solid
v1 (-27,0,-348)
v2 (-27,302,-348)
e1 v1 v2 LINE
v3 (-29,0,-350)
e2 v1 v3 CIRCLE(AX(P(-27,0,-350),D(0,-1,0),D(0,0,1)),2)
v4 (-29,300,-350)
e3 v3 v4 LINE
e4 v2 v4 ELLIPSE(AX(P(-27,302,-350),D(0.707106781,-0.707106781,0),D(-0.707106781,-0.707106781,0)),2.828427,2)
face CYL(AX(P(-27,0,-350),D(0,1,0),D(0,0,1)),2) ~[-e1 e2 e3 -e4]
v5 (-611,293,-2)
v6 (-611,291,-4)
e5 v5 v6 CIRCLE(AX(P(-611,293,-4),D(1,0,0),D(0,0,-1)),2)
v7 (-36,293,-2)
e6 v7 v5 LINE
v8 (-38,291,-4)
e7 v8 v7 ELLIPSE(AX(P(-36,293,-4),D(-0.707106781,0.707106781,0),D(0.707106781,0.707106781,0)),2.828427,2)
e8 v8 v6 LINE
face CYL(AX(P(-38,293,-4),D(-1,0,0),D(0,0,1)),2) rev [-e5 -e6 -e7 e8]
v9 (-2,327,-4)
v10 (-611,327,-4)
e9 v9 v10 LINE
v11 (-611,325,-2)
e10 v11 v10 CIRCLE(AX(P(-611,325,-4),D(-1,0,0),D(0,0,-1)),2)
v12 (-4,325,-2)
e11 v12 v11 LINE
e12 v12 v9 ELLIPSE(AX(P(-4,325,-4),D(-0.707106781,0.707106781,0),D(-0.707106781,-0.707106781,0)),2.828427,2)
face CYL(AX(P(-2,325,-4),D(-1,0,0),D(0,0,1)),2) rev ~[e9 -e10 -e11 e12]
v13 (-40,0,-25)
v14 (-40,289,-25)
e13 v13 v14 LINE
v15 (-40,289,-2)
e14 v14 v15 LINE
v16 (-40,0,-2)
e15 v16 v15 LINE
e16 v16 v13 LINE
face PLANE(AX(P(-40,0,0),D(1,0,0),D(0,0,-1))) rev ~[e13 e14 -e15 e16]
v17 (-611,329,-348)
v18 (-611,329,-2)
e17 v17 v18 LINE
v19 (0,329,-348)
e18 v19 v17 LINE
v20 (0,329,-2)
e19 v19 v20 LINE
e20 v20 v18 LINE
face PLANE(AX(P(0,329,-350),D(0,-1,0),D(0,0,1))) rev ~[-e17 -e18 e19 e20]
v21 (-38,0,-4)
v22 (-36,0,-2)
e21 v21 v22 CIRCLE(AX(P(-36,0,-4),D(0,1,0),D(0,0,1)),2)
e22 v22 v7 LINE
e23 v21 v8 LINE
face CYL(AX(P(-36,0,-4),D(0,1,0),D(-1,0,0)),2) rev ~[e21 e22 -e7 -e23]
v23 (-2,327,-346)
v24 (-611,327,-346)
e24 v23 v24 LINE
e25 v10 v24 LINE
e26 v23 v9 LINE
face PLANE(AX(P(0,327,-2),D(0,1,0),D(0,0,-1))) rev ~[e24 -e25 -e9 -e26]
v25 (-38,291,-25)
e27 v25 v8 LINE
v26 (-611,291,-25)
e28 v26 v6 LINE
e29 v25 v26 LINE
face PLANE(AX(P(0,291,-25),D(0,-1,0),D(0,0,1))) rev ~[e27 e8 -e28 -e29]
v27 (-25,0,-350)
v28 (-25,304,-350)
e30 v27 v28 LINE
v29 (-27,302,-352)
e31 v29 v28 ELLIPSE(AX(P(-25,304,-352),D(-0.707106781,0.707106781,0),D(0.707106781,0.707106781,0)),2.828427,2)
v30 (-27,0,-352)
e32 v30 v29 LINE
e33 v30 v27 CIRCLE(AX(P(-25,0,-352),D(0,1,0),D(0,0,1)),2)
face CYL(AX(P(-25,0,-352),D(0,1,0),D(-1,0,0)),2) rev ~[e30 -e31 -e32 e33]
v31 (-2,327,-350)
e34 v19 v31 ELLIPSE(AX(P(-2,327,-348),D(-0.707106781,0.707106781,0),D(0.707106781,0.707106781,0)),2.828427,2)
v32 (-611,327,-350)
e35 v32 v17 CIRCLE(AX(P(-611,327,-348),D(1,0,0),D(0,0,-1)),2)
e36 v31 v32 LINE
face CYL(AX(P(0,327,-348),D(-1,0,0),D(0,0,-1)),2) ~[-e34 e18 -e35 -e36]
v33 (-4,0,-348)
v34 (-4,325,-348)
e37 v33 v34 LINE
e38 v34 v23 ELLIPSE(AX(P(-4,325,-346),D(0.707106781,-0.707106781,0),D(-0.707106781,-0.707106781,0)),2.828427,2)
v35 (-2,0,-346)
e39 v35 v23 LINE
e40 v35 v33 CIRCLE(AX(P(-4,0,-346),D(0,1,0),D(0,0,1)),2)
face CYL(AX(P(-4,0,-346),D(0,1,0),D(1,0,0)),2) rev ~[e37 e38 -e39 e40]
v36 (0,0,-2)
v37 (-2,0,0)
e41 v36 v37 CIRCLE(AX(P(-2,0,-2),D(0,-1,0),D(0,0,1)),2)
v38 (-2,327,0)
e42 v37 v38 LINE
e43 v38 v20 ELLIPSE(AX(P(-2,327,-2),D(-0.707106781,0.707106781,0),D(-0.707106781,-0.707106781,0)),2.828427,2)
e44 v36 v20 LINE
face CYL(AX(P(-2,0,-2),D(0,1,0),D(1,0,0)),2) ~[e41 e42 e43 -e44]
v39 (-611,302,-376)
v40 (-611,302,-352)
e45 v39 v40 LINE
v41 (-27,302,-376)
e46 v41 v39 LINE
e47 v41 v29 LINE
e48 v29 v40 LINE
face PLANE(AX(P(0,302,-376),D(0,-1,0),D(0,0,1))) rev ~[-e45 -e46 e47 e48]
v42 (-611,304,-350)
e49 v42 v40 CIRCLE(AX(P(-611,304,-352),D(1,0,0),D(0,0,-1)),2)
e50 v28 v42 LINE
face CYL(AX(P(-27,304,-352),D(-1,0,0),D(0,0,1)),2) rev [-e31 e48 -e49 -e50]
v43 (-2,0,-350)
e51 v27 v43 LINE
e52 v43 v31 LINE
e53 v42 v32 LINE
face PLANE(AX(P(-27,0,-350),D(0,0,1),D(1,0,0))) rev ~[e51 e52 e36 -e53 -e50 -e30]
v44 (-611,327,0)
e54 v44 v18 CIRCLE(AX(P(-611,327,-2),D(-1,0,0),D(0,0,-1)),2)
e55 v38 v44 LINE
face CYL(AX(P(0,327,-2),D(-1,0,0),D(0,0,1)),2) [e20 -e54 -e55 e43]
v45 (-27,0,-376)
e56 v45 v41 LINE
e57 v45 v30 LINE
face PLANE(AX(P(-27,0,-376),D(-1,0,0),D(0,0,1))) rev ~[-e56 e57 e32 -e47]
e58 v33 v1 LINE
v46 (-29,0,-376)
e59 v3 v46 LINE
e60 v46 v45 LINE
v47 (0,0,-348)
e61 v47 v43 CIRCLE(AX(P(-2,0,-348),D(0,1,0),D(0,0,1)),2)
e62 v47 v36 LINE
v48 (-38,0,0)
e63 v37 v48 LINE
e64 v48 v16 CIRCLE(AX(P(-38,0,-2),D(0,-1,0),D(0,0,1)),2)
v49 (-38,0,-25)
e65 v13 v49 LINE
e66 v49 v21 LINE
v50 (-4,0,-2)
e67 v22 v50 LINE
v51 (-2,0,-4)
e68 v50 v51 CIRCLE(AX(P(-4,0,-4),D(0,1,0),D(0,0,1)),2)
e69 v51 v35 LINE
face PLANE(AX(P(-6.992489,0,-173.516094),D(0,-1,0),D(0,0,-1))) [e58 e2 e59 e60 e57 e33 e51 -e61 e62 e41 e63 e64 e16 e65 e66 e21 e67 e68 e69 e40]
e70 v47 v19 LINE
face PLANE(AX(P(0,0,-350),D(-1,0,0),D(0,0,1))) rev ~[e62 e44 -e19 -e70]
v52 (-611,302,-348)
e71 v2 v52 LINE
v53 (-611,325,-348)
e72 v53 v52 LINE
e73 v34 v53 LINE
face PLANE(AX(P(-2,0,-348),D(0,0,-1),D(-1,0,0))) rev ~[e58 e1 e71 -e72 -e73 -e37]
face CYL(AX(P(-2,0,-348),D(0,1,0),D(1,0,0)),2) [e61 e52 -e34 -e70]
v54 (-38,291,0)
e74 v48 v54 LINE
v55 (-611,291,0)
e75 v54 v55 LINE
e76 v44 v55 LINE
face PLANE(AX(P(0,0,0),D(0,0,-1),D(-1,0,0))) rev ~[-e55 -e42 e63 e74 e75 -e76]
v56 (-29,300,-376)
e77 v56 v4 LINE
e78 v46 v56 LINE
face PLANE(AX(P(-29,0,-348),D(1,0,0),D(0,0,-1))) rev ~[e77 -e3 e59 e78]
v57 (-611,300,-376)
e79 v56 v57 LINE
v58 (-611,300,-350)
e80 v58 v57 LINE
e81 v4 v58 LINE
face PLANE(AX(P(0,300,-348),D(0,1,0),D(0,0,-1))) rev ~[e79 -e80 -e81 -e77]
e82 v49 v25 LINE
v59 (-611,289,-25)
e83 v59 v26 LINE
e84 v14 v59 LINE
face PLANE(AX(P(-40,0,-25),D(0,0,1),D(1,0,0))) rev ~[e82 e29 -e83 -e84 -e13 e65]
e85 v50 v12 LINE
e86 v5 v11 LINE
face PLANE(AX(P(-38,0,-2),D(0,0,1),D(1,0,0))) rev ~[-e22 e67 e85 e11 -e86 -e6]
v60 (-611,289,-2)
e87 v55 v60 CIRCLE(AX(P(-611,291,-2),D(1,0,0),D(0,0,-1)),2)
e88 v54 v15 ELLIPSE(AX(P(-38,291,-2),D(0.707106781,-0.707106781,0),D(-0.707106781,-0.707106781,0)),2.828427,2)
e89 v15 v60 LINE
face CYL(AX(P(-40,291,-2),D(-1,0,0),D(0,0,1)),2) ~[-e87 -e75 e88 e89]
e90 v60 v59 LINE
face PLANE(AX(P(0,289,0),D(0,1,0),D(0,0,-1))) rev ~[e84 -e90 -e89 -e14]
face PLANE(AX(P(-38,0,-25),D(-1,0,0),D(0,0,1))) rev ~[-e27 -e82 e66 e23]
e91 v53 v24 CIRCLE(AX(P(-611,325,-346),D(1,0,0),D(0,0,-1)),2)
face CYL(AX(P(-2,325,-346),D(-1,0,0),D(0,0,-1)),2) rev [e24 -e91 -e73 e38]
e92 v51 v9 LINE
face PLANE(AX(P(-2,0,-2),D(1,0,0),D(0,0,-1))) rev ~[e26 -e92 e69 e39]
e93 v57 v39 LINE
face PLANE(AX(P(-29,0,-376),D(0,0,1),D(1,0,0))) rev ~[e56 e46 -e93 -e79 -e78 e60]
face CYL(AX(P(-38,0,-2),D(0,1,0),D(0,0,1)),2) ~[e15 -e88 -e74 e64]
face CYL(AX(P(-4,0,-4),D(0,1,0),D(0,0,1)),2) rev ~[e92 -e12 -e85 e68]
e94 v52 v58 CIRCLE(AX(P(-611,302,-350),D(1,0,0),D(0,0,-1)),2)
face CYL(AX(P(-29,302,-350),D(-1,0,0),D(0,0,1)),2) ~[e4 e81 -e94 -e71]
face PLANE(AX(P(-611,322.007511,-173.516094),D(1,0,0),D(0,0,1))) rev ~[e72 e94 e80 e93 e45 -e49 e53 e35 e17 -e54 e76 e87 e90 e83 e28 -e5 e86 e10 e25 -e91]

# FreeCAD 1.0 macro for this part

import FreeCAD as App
import Part
import Sketcher
Q = App.Units.Quantity


def edges_at(feature, points):
    """Names of the edges that pass closest to the given points."""
    edges = feature.Shape.Edges
    near = lambda p: min(range(len(edges)), key=lambda i: edges[i].distToShape(Part.Vertex(*p))[0])
    return sorted({f"Edge{near(p) + 1}" for p in points})

doc = App.newDocument("Part")
body = doc.addObject("PartDesign::Body", "Body")

# Sketch on XZ plane
sketch1 = body.newObject("Sketcher::SketchObject", "Sketch")
sketch1.AttachmentSupport = (doc.getObject("XZ_Plane"), [""])
sketch1.MapMode = "FlatFace"
sketch1.addGeometry([
    Part.LineSegment(App.Vector(0, -350, 0), App.Vector(0, 0, 0)),  # 0
    Part.LineSegment(App.Vector(0, 0, 0), App.Vector(-40, 0, 0)),  # 1
    Part.LineSegment(App.Vector(-40, 0, 0), App.Vector(-40, -25, 0)),  # 2
    Part.LineSegment(App.Vector(-40, -25, 0), App.Vector(-38, -25, 0)),  # 3
    Part.LineSegment(App.Vector(-38, -25, 0), App.Vector(-38, -2, 0)),  # 4
    Part.LineSegment(App.Vector(-38, -2, 0), App.Vector(-2, -2, 0)),  # 5
    Part.LineSegment(App.Vector(-2, -2, 0), App.Vector(-2, -348, 0)),  # 6
    Part.LineSegment(App.Vector(-2, -348, 0), App.Vector(-29, -348, 0)),  # 7
    Part.LineSegment(App.Vector(-29, -348, 0), App.Vector(-29, -376, 0)),  # 8
    Part.LineSegment(App.Vector(-29, -376, 0), App.Vector(-27, -376, 0)),  # 9
    Part.LineSegment(App.Vector(-27, -376, 0), App.Vector(-27, -350, 0)),  # 10
    Part.LineSegment(App.Vector(-27, -350, 0), App.Vector(0, -350, 0)),  # 11
], False)
sketch1.addConstraint([
    Sketcher.Constraint("Coincident", 0, 2, 1, 1),
    Sketcher.Constraint("Coincident", 1, 2, 2, 1),
    Sketcher.Constraint("Coincident", 2, 2, 3, 1),
    Sketcher.Constraint("Coincident", 3, 2, 4, 1),
    Sketcher.Constraint("Coincident", 4, 2, 5, 1),
    Sketcher.Constraint("Coincident", 5, 2, 6, 1),
    Sketcher.Constraint("Coincident", 6, 2, 7, 1),
    Sketcher.Constraint("Coincident", 7, 2, 8, 1),
    Sketcher.Constraint("Coincident", 8, 2, 9, 1),
    Sketcher.Constraint("Coincident", 9, 2, 10, 1),
    Sketcher.Constraint("Coincident", 10, 2, 11, 1),
    Sketcher.Constraint("Coincident", 11, 2, 0, 1),
    Sketcher.Constraint("Vertical", 0),
    Sketcher.Constraint("Horizontal", 1),
    Sketcher.Constraint("Vertical", 2),
    Sketcher.Constraint("Horizontal", 3),
    Sketcher.Constraint("Vertical", 4),
    Sketcher.Constraint("Horizontal", 5),
    Sketcher.Constraint("Vertical", 6),
    Sketcher.Constraint("Horizontal", 7),
    Sketcher.Constraint("Vertical", 8),
    Sketcher.Constraint("Horizontal", 9),
    Sketcher.Constraint("Vertical", 10),
    Sketcher.Constraint("Horizontal", 11),
    Sketcher.Constraint("Coincident", 0, 2, -1, 1),
    Sketcher.Constraint("Equal", 3, 9),
    Sketcher.Constraint("Equal", 7, 11),
    Sketcher.Constraint("DistanceX", 1, 2, 1, 1, Q("40 mm")),
    Sketcher.Constraint("DistanceX", 3, 1, 3, 2, Q("2 mm")),
    Sketcher.Constraint("DistanceX", 7, 2, 7, 1, Q("27 mm")),
    Sketcher.Constraint("DistanceY", 0, 1, 0, 2, Q("350 mm")),
    Sketcher.Constraint("DistanceY", 2, 2, 2, 1, Q("25 mm")),
    Sketcher.Constraint("DistanceY", 4, 1, 4, 2, Q("23 mm")),
    Sketcher.Constraint("DistanceY", 6, 2, 6, 1, Q("346 mm")),
    Sketcher.Constraint("DistanceY", 8, 2, 8, 1, Q("28 mm")),
])

# Sketch on XY plane
sketch2 = body.newObject("Sketcher::SketchObject", "Sketch001")
sketch2.AttachmentSupport = (doc.getObject("XY_Plane"), [""])
sketch2.MapMode = "FlatFace"
sketch2.addGeometry([
    Part.LineSegment(App.Vector(0, 0, 0), App.Vector(0, 329, 0)),
    Part.LineSegment(App.Vector(0, 329, 0), App.Vector(-611, 329, 0)),
], False)
sketch2.addConstraint([
    Sketcher.Constraint("Coincident", 0, 2, 1, 1),
    Sketcher.Constraint("Vertical", 0),
    Sketcher.Constraint("Horizontal", 1),
    Sketcher.Constraint("Coincident", 0, 1, -1, 1),
    Sketcher.Constraint("DistanceX", 1, 2, 1, 1, Q("611 mm")),
    Sketcher.Constraint("DistanceY", 0, 1, 0, 2, Q("329 mm")),
])
doc.recompute()

additivepipe = body.newObject("PartDesign::AdditivePipe", "AdditivePipe")
additivepipe.Profile = sketch1
additivepipe.Spine = (sketch2, ["Edge1", "Edge2"])
additivepipe.Transition = "Right corner"
doc.recompute()

fillet = body.newObject("PartDesign::Fillet", "Fillet")
fillet.Base = (additivepipe, edges_at(additivepipe, [
    (-325.5, 289, 0),
    (-305.5, 329, 0),
    (-40, 144.5, 0),
    (0, 164.5, 0),
    (-306.5, 327, -348),
    (-320, 300, -348),
    (-29, 150, -348),
    (-2, 163.5, -348),
    (0, 164.5, -350),
    (-27, 151, -350),
    (-319, 302, -350),
    (-305.5, 329, -350),
    (-306.5, 327, -2),
    (-2, 163.5, -2),
    (-38, 145.5, -2),
    (-324.5, 291, -2),
]))
fillet.Radius = 2

doc.recompute()
